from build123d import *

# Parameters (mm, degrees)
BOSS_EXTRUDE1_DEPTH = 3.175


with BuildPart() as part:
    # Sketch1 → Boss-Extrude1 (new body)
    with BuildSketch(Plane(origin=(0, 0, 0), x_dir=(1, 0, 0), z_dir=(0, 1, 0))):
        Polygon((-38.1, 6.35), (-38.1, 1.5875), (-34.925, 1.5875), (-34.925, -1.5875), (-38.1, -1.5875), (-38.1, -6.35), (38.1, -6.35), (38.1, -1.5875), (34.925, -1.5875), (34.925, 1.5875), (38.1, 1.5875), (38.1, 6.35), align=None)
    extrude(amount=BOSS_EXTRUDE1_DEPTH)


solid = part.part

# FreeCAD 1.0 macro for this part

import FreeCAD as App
import Part
import Sketcher

V = App.Vector
Q = App.Units.Quantity

doc = App.newDocument("Part")
body = doc.addObject("PartDesign::Body", "Body")

sketch1 = body.newObject("Sketcher::SketchObject", "Sketch")
sketch1.AttachmentSupport = (doc.getObject("XZ_Plane"), [""])
sketch1.MapMode = "FlatFace"
sketch1.addGeometry([
    Part.LineSegment(V(-38.1, -6.35, 0), V(-38.1, -1.5875, 0)),
    Part.LineSegment(V(-38.1, -1.5875, 0), V(-34.925, -1.5875, 0)),
    Part.LineSegment(V(-34.925, -1.5875, 0), V(-34.925, 1.5875, 0)),
    Part.LineSegment(V(-34.925, 1.5875, 0), V(-38.1, 1.5875, 0)),
    Part.LineSegment(V(-38.1, 1.5875, 0), V(-38.1, 6.35, 0)),
    Part.LineSegment(V(-38.1, 6.35, 0), V(38.1, 6.35, 0)),
    Part.LineSegment(V(38.1, 6.35, 0), V(38.1, 1.5875, 0)),
    Part.LineSegment(V(38.1, 1.5875, 0), V(34.925, 1.5875, 0)),
    Part.LineSegment(V(34.925, 1.5875, 0), V(34.925, -1.5875, 0)),
    Part.LineSegment(V(34.925, -1.5875, 0), V(38.1, -1.5875, 0)),
    Part.LineSegment(V(38.1, -1.5875, 0), V(38.1, -6.35, 0)),
    Part.LineSegment(V(38.1, -6.35, 0), V(-38.1, -6.35, 0)),
], False)
sketch1.addConstraint([
    Sketcher.Constraint("Coincident", 0, 2, 1, 1),
    Sketcher.Constraint("Coincident", 1, 2, 2, 1),
    Sketcher.Constraint("Coincident", 2, 2, 3, 1),
    Sketcher.Constraint("Coincident", 3, 2, 4, 1),
    Sketcher.Constraint("Coincident", 4, 2, 5, 1),
    Sketcher.Constraint("Coincident", 5, 2, 6, 1),
    Sketcher.Constraint("Coincident", 6, 2, 7, 1),
    Sketcher.Constraint("Coincident", 7, 2, 8, 1),
    Sketcher.Constraint("Coincident", 8, 2, 9, 1),
    Sketcher.Constraint("Coincident", 9, 2, 10, 1),
    Sketcher.Constraint("Coincident", 10, 2, 11, 1),
    Sketcher.Constraint("Coincident", 11, 2, 0, 1),
    Sketcher.Constraint("Vertical", 0),
    Sketcher.Constraint("Horizontal", 1),
    Sketcher.Constraint("Vertical", 2),
    Sketcher.Constraint("Horizontal", 3),
    Sketcher.Constraint("Vertical", 4),
    Sketcher.Constraint("Horizontal", 5),
    Sketcher.Constraint("Vertical", 6),
    Sketcher.Constraint("Horizontal", 7),
    Sketcher.Constraint("Vertical", 8),
    Sketcher.Constraint("Horizontal", 9),
    Sketcher.Constraint("Vertical", 10),
    Sketcher.Constraint("Horizontal", 11),
    Sketcher.Constraint("Symmetric", 0, 2, 6, 2, -1, 1),
    Sketcher.Constraint("Symmetric", 2, 2, 8, 2, -1, 1),
    Sketcher.Constraint("Symmetric", 4, 2, 10, 2, -1, 1),
    Sketcher.Constraint("Symmetric", 3, 2, 6, 2, -2),
    Sketcher.Constraint("Equal", 9, 2),
    Sketcher.Constraint("DistanceX", 5, 1, 5, 2, Q("3 in")),
    Sketcher.Constraint("DistanceY", 10, 2, 5, 2, Q("0.5 in")),
    Sketcher.Constraint("DistanceX", 1, 1, 1, 2, Q("0.125 in")),
])
pad1 = body.newObject("PartDesign::Pad", "Pad")
pad1.Profile = sketch1
pad1.Length = Q("0.125 in")
pad1.Reversed = True

doc.recompute()
